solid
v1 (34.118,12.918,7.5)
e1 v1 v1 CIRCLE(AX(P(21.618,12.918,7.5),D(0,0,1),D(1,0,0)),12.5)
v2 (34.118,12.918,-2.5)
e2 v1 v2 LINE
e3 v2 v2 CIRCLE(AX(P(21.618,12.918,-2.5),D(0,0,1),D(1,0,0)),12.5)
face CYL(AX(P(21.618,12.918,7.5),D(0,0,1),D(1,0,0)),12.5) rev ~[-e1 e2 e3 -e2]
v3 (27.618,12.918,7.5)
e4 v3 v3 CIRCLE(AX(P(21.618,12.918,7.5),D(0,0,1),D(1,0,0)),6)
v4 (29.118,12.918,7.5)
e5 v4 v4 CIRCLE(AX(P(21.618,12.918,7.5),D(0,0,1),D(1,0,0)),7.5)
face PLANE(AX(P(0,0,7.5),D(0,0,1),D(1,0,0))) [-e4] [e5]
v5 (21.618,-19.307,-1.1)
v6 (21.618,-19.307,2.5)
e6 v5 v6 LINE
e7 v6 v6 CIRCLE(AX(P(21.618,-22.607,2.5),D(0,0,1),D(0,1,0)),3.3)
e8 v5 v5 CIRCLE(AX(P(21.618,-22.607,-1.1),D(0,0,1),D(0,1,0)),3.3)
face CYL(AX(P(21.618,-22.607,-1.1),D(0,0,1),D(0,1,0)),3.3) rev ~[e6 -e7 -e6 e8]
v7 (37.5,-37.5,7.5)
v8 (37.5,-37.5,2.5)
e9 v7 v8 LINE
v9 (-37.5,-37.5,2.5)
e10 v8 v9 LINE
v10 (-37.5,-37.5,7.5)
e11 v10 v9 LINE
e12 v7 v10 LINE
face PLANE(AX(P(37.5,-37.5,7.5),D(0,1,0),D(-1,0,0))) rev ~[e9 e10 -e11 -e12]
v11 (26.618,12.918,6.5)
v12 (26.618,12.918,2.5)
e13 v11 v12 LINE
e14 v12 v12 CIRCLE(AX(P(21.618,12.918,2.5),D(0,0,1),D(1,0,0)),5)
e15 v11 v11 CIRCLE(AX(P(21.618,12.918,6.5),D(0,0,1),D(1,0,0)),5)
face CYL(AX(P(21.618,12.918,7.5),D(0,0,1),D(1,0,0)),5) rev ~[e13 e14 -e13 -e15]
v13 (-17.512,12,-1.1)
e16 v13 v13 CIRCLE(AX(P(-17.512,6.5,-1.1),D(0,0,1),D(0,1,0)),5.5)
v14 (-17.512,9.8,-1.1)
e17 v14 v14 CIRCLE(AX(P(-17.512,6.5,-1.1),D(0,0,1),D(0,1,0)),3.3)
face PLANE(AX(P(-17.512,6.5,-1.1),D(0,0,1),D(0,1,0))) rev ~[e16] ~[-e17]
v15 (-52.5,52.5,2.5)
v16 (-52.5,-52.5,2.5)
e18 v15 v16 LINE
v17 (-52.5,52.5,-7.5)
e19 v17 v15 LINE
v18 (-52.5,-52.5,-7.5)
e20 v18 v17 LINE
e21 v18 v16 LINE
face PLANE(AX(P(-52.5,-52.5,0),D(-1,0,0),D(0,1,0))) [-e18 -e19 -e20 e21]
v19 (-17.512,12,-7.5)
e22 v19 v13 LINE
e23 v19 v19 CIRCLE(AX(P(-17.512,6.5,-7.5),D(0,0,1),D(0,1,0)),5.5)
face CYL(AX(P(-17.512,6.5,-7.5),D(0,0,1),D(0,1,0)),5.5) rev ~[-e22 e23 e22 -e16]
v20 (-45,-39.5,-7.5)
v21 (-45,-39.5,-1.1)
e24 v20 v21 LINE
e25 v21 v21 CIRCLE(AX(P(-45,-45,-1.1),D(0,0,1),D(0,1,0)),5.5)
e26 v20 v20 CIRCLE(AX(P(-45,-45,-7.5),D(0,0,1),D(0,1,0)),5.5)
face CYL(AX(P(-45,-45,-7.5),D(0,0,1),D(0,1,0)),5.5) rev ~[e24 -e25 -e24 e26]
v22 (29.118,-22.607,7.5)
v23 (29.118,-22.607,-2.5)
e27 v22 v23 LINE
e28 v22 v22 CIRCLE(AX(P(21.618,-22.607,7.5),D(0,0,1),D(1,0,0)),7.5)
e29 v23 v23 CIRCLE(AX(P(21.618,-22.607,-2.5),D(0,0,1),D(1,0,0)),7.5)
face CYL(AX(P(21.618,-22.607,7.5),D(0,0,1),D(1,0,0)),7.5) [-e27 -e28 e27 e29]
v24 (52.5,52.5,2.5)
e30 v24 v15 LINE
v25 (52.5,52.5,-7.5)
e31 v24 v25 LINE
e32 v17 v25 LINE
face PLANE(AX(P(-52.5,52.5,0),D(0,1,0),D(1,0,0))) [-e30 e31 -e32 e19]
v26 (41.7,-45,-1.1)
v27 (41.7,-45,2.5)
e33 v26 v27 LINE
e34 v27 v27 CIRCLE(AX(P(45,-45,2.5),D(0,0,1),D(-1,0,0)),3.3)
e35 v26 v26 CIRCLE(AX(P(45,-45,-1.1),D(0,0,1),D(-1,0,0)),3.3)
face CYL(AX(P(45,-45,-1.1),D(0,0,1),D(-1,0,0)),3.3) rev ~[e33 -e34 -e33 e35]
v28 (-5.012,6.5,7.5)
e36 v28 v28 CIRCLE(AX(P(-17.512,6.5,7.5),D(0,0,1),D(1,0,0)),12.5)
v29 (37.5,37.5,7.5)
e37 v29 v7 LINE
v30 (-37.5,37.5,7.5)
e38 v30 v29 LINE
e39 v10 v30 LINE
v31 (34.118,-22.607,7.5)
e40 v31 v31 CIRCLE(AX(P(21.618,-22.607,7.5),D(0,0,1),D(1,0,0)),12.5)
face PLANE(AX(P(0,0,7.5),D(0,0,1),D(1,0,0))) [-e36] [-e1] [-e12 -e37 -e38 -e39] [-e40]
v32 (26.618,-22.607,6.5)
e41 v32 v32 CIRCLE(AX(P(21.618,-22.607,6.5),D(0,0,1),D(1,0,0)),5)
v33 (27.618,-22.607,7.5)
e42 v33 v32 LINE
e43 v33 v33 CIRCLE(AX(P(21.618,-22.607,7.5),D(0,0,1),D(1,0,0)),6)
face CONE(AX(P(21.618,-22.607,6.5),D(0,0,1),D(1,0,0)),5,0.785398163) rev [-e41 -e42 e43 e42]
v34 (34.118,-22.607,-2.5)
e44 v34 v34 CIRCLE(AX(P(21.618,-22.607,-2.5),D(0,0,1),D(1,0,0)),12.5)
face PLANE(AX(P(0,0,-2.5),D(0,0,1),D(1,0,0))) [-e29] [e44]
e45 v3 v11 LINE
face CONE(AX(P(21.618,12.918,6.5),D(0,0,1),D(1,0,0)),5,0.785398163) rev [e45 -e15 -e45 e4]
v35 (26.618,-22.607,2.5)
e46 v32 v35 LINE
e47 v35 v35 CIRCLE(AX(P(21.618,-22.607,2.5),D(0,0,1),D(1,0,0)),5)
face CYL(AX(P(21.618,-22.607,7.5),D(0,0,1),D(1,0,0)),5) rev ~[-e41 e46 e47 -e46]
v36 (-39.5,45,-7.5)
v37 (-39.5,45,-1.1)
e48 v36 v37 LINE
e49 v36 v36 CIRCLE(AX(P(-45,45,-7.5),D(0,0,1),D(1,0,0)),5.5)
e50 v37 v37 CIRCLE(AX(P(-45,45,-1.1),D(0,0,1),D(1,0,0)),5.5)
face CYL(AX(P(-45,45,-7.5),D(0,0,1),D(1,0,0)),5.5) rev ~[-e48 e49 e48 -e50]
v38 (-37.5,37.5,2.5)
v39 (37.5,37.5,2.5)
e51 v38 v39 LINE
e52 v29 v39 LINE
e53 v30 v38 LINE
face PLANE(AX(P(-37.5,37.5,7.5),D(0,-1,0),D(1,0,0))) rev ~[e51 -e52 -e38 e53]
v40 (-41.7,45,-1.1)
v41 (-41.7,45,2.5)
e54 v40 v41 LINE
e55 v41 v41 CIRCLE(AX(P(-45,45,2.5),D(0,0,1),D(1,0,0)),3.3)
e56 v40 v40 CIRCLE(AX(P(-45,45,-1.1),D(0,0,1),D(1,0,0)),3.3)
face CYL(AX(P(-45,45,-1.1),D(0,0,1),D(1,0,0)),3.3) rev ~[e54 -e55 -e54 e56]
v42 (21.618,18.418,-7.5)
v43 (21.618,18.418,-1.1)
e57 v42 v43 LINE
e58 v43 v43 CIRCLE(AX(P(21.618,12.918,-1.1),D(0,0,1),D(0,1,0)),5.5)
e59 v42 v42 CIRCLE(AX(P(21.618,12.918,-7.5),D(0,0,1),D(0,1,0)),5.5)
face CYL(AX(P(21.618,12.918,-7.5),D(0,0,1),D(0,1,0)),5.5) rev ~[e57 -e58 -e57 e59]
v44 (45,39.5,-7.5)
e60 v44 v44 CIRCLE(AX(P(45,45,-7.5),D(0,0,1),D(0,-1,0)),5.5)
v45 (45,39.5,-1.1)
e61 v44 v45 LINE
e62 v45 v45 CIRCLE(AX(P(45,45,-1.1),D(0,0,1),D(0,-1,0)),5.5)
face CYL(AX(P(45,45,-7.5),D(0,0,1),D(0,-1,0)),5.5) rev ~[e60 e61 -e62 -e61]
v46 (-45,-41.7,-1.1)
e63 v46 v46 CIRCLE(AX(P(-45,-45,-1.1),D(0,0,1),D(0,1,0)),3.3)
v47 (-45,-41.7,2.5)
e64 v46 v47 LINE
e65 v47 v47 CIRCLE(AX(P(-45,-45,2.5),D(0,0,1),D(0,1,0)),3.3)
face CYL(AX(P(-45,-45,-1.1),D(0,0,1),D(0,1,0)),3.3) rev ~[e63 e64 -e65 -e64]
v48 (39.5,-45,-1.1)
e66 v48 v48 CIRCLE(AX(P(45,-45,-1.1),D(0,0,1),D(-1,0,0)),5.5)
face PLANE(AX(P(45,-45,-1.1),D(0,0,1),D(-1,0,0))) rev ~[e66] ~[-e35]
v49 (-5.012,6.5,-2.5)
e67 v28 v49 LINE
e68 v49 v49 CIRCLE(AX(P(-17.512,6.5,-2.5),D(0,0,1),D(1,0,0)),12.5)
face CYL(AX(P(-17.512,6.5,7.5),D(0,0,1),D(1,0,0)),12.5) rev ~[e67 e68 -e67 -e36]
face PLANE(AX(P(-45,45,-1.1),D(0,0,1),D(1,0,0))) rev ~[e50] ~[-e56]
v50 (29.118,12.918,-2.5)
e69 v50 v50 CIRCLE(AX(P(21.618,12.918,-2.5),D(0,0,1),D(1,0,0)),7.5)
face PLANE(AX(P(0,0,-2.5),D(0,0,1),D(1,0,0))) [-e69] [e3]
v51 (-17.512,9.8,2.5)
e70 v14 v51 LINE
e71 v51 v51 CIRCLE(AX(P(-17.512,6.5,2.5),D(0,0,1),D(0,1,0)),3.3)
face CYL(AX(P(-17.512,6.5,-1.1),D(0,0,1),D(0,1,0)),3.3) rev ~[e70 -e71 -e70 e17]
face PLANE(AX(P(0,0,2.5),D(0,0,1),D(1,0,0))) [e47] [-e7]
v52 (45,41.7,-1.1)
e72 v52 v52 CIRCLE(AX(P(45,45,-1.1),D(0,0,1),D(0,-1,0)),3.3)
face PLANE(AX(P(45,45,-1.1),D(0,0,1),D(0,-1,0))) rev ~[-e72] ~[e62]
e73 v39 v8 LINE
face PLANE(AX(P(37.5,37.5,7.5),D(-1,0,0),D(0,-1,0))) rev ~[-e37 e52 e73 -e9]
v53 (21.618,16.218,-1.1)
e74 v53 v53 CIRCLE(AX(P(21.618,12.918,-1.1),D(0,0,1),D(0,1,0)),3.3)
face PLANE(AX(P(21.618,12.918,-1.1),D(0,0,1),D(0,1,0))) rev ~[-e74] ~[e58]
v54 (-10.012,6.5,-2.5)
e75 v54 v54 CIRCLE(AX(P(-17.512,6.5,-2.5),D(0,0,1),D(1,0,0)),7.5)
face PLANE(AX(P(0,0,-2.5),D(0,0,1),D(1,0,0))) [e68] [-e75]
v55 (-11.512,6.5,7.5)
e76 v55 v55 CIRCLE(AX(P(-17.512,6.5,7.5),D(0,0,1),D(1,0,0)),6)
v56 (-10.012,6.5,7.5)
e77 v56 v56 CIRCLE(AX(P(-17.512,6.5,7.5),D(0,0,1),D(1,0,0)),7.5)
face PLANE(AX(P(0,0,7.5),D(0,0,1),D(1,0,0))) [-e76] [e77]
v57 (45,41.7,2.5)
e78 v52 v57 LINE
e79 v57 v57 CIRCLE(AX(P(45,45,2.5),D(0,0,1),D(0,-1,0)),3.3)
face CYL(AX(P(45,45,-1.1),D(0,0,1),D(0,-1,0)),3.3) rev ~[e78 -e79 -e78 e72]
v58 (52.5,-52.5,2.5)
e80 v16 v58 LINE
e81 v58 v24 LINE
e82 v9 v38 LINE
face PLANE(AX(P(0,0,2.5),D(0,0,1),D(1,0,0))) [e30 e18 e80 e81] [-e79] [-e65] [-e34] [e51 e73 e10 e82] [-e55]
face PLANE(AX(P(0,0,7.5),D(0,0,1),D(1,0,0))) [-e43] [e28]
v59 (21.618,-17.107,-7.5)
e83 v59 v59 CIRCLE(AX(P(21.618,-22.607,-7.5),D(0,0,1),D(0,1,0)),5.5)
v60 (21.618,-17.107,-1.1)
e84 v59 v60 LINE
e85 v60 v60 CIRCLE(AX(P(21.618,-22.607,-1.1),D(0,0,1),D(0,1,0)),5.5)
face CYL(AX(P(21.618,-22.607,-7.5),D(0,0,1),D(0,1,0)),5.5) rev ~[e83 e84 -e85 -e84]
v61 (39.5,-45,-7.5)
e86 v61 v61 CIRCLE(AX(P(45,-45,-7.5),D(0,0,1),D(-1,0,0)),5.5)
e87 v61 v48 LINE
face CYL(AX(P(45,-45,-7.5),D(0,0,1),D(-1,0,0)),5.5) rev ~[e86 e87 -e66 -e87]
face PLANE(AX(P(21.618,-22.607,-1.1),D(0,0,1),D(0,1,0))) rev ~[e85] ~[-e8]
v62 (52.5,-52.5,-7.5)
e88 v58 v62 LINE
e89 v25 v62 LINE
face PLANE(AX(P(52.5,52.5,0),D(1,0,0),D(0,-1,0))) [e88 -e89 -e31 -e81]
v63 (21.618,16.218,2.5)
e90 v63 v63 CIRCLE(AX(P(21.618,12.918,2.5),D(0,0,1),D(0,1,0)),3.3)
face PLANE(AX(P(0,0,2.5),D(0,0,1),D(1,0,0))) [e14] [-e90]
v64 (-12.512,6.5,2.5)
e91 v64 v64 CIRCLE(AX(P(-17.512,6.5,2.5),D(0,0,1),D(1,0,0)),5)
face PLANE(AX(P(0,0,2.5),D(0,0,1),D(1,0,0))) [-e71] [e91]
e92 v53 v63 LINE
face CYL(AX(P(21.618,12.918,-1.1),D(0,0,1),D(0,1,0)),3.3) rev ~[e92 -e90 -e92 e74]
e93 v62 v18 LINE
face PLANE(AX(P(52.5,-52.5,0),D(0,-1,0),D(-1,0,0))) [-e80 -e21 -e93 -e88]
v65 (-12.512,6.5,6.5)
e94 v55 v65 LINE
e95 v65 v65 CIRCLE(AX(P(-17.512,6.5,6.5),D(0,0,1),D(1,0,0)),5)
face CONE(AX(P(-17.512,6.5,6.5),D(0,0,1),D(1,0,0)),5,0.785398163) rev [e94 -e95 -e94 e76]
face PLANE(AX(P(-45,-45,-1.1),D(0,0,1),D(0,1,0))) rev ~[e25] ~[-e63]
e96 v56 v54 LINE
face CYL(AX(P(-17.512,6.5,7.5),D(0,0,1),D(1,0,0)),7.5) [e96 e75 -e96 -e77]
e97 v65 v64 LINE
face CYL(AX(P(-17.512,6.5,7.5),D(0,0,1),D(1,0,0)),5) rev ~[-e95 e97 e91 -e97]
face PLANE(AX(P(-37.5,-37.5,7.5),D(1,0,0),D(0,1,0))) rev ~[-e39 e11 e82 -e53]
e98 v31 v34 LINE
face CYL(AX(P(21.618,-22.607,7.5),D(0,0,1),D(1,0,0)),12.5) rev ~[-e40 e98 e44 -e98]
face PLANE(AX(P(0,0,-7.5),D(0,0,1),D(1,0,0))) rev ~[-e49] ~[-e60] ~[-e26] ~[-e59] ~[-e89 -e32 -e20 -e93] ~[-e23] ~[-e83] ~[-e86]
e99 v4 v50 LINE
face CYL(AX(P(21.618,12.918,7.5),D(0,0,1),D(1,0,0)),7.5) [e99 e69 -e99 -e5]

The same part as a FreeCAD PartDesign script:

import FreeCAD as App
import Part
import Sketcher

V = App.Vector
Q = App.Units.Quantity


def edges_at(feature, points):
    """Names of the edges that pass closest to the given points."""
    edges = feature.Shape.Edges
    near = lambda p: min(range(len(edges)), key=lambda i: edges[i].distToShape(Part.Vertex(*p))[0])
    return sorted({f"Edge{near(p) + 1}" for p in points})


def add_polygon(sketch, points):
    """Adds a closed chain of lines whose ends are joined by coincident constraints."""
    first, n = sketch.GeometryCount, len(points)
    for a, b in zip(points, points[1:] + points[:1]):
        sketch.addGeometry(Part.LineSegment(App.Vector(*a, 0), App.Vector(*b, 0)), False)
    for i in range(n):
        sketch.addConstraint(Sketcher.Constraint("Coincident", first + i, 2, first + (i + 1) % n, 1))

doc = App.newDocument("Part")
body = doc.addObject("PartDesign::Body", "Body")

sketch1 = doc.addObject("Sketcher::SketchObject", "Sketch")
body.addObject(sketch1)
sketch1.AttachmentSupport = (doc.XY_Plane, [""])
sketch1.MapMode = "FlatFace"
add_polygon(sketch1, [(52, 52), (-52, 52), (-52, -52), (52, -52)])
sketch1.addConstraint([
    Sketcher.Constraint("Horizontal", 0),
    Sketcher.Constraint("Vertical", 1),
    Sketcher.Constraint("Horizontal", 2),
    Sketcher.Constraint("Vertical", 3),
    Sketcher.Constraint("Symmetric", 0, 2, 2, 2, -1, 1),
    Sketcher.Constraint("Equal", 2, 1),
    Sketcher.Constraint("DistanceX", 0, 2, 0, 1, Q("105 mm")),
])
pad1 = doc.addObject("PartDesign::Pad", "Pad")
body.addObject(pad1)
pad1.Profile = sketch1
pad1.Length = 15
pad1.Midplane = True

sketch2 = doc.addObject("Sketcher::SketchObject", "Sketch001")
body.addObject(sketch2)
sketch2.AttachmentSupport = (doc.XY_Plane, [""])
sketch2.MapMode = "FlatFace"
sketch2.AttachmentOffset = App.Placement(V(0, 0, -7.5), App.Rotation())
sketch2.addGeometry([
    Part.Circle(V(21.6, -22.6, 0), V(0, 0, 1), 3.3),
    Part.Circle(V(21.6, 12.9, 0), V(0, 0, 1), 3.3),
    Part.Circle(V(-17.5, 6.5, 0), V(0, 0, 1), 3.3),
], False)
sketch2.addConstraint([
    Sketcher.Constraint("Equal", 0, 1),
    Sketcher.Constraint("Equal", 1, 2),
    Sketcher.Constraint("Vertical", 0, 3, 1, 3),
    Sketcher.Constraint("Diameter", 0, Q("6.6 mm")),
    Sketcher.Constraint("DistanceY", -1, 1, 2, 3, Q("6.5 mm")),
    Sketcher.Constraint("DistanceX", 2, 3, 1, 3, Q("39.13 mm")),
    Sketcher.Constraint("DistanceX", -1, 1, 0, 3, Q("21.618 mm")),
    Sketcher.Constraint("DistanceY", 0, 3, -1, 1, Q("22.607 mm")),
    Sketcher.Constraint("DistanceY", -1, 1, 1, 3, Q("12.918 mm")),
])
doc.recompute()
hole = doc.addObject("PartDesign::Hole", "Hole")
body.addObject(hole)
hole.Profile = sketch2
hole.ThreadType = "None"
hole.Diameter = 6.6
hole.DepthType = "ThroughAll"
hole.HoleCutType = "Counterbore"
hole.HoleCutDiameter = 11
hole.HoleCutDepth = 6.4
hole.Reversed = True

sketch3 = doc.addObject("Sketcher::SketchObject", "Sketch002")
body.addObject(sketch3)
sketch3.AttachmentSupport = (doc.XY_Plane, [""])
sketch3.MapMode = "FlatFace"
sketch3.AttachmentOffset = App.Placement(V(0, 0, 7.5), App.Rotation())
sketch3.addGeometry([
    Part.Circle(V(-18, 6, 0), V(0, 0, 1), 5),
    Part.Circle(V(22, 13, 0), V(0, 0, 1), 5),
    Part.Circle(V(22, -23, 0), V(0, 0, 1), 5),
], False)
sketch3.addConstraint([
    Sketcher.Constraint("Equal", 0, 1),
    Sketcher.Constraint("Equal", 1, 2),
    Sketcher.Constraint("Vertical", 1, 3, 2, 3),
    Sketcher.Constraint("Diameter", 0, Q("10 mm")),
    Sketcher.Constraint("DistanceY", -1, 1, 0, 3, Q("6.5 mm")),
    Sketcher.Constraint("DistanceX", 0, 3, 1, 3, Q("39.13 mm")),
    Sketcher.Constraint("DistanceX", 0, 3, -1, 1, Q("17.512 mm")),
    Sketcher.Constraint("DistanceY", -1, 1, 1, 3, Q("12.918 mm")),
    Sketcher.Constraint("DistanceY", 2, 3, -1, 1, Q("22.607 mm")),
])
pocket1 = doc.addObject("PartDesign::Pocket", "Pocket")
body.addObject(pocket1)
pocket1.Profile = sketch3
pocket1.Length = 5
doc.recompute()

chamfer = doc.addObject("PartDesign::Chamfer", "Chamfer")
body.addObject(chamfer)
chamfer.Base = (pocket1, edges_at(pocket1, [(-22.512, 6.5, 7.5), (16.618, 12.918, 7.5), (16.618, -22.607, 7.5)]))
chamfer.Size = 1

sketch4 = doc.addObject("Sketcher::SketchObject", "Sketch003")
body.addObject(sketch4)
sketch4.AttachmentSupport = (doc.XY_Plane, [""])
sketch4.MapMode = "FlatFace"
sketch4.AttachmentOffset = App.Placement(V(0, 0, 7.5), App.Rotation())
add_polygon(sketch4, [(52, -52), (52, 52), (-52, 52), (-52, -52)])
add_polygon(sketch4, [(-38, -38), (-38, 38), (38, 38), (38, -38)])
sketch4.addConstraint([
    Sketcher.Constraint("Vertical", 0),
    Sketcher.Constraint("Horizontal", 1),
    Sketcher.Constraint("Vertical", 2),
    Sketcher.Constraint("Horizontal", 3),
    Sketcher.Constraint("Vertical", 4),
    Sketcher.Constraint("Horizontal", 5),
    Sketcher.Constraint("Vertical", 6),
    Sketcher.Constraint("Horizontal", 7),
    Sketcher.Constraint("Symmetric", 0, 2, 2, 2, -1, 1),
    Sketcher.Constraint("Symmetric", 4, 2, 6, 2, -1, 1),
    Sketcher.Constraint("Equal", 3, 0),
    Sketcher.Constraint("Equal", 7, 4),
    Sketcher.Constraint("DistanceX", 1, 2, 4, 2, Q("15 mm")),
    Sketcher.Constraint("DistanceX", 1, 2, 1, 1, Q("105 mm")),
])
pocket2 = doc.addObject("PartDesign::Pocket", "Pocket001")
body.addObject(pocket2)
pocket2.Profile = sketch4
pocket2.Length = 5

sketch5 = doc.addObject("Sketcher::SketchObject", "Sketch004")
body.addObject(sketch5)
sketch5.AttachmentSupport = (doc.XY_Plane, [""])
sketch5.MapMode = "FlatFace"
sketch5.AttachmentOffset = App.Placement(V(0, 0, -7.5), App.Rotation())
sketch5.addGeometry(Part.Circle(V(-45, -45, 0), V(0, 0, 1), 3.3), False)
sketch5.addConstraint([
    Sketcher.Constraint("Diameter", 0, Q("6.6 mm")),
    Sketcher.Constraint("DistanceX", 0, 3, -1, 1, Q("45 mm")),
    Sketcher.Constraint("DistanceY", 0, 3, -1, 1, Q("45 mm")),
])
doc.recompute()
hole2 = doc.addObject("PartDesign::Hole", "Hole001")
body.addObject(hole2)
hole2.Profile = sketch5
hole2.ThreadType = "None"
hole2.Diameter = 6.6
hole2.DepthType = "ThroughAll"
hole2.HoleCutType = "Counterbore"
hole2.HoleCutDiameter = 11
hole2.HoleCutDepth = 6.4
hole2.Reversed = True
doc.recompute()

polarpattern = doc.addObject("PartDesign::PolarPattern", "PolarPattern")
body.addObject(polarpattern)
polarpattern.Originals = [hole2]
polarpattern.Axis = (doc.Z_Axis, [""])
polarpattern.Angle = 360
polarpattern.Occurrences = 4
body.Tip = polarpattern

sketch6 = doc.addObject("Sketcher::SketchObject", "Sketch005")
body.addObject(sketch6)
sketch6.AttachmentSupport = (doc.XY_Plane, [""])
sketch6.MapMode = "FlatFace"
sketch6.AttachmentOffset = App.Placement(V(0, 0, 7.5), App.Rotation())
sketch6.addGeometry([
    Part.Circle(V(-18, 6, 0), V(0, 0, 1), 12),
    Part.Circle(V(-18, 6, 0), V(0, 0, 1), 8),
    Part.Circle(V(22, 13, 0), V(0, 0, 1), 12),
    Part.Circle(V(22, 13, 0), V(0, 0, 1), 8),
    Part.Circle(V(22, -23, 0), V(0, 0, 1), 12),
    Part.Circle(V(22, -23, 0), V(0, 0, 1), 8),
], False)
sketch6.addConstraint([
    Sketcher.Constraint("Coincident", 1, 3, 0, 3),
    Sketcher.Constraint("Coincident", 3, 3, 2, 3),
    Sketcher.Constraint("Coincident", 5, 3, 4, 3),
    Sketcher.Constraint("Equal", 0, 2),
    Sketcher.Constraint("Equal", 1, 3),
    Sketcher.Constraint("Equal", 2, 4),
    Sketcher.Constraint("Equal", 3, 5),
    Sketcher.Constraint("Vertical", 3, 3, 4, 3),
    Sketcher.Constraint("Diameter", 0, Q("25 mm")),
    Sketcher.Constraint("Diameter", 1, Q("15 mm")),
    Sketcher.Constraint("DistanceY", -1, 1, 0, 3, Q("6.5 mm")),
    Sketcher.Constraint("DistanceX", 0, 3, 2, 3, Q("39.13 mm")),
    Sketcher.Constraint("DistanceX", 0, 3, -1, 1, Q("17.512 mm")),
    Sketcher.Constraint("DistanceY", -1, 1, 2, 3, Q("12.918 mm")),
    Sketcher.Constraint("DistanceY", 4, 3, -1, 1, Q("22.607 mm")),
])
pocket3 = doc.addObject("PartDesign::Pocket", "Pocket002")
body.addObject(pocket3)
pocket3.Profile = sketch6
pocket3.Length = 10

doc.recompute()
